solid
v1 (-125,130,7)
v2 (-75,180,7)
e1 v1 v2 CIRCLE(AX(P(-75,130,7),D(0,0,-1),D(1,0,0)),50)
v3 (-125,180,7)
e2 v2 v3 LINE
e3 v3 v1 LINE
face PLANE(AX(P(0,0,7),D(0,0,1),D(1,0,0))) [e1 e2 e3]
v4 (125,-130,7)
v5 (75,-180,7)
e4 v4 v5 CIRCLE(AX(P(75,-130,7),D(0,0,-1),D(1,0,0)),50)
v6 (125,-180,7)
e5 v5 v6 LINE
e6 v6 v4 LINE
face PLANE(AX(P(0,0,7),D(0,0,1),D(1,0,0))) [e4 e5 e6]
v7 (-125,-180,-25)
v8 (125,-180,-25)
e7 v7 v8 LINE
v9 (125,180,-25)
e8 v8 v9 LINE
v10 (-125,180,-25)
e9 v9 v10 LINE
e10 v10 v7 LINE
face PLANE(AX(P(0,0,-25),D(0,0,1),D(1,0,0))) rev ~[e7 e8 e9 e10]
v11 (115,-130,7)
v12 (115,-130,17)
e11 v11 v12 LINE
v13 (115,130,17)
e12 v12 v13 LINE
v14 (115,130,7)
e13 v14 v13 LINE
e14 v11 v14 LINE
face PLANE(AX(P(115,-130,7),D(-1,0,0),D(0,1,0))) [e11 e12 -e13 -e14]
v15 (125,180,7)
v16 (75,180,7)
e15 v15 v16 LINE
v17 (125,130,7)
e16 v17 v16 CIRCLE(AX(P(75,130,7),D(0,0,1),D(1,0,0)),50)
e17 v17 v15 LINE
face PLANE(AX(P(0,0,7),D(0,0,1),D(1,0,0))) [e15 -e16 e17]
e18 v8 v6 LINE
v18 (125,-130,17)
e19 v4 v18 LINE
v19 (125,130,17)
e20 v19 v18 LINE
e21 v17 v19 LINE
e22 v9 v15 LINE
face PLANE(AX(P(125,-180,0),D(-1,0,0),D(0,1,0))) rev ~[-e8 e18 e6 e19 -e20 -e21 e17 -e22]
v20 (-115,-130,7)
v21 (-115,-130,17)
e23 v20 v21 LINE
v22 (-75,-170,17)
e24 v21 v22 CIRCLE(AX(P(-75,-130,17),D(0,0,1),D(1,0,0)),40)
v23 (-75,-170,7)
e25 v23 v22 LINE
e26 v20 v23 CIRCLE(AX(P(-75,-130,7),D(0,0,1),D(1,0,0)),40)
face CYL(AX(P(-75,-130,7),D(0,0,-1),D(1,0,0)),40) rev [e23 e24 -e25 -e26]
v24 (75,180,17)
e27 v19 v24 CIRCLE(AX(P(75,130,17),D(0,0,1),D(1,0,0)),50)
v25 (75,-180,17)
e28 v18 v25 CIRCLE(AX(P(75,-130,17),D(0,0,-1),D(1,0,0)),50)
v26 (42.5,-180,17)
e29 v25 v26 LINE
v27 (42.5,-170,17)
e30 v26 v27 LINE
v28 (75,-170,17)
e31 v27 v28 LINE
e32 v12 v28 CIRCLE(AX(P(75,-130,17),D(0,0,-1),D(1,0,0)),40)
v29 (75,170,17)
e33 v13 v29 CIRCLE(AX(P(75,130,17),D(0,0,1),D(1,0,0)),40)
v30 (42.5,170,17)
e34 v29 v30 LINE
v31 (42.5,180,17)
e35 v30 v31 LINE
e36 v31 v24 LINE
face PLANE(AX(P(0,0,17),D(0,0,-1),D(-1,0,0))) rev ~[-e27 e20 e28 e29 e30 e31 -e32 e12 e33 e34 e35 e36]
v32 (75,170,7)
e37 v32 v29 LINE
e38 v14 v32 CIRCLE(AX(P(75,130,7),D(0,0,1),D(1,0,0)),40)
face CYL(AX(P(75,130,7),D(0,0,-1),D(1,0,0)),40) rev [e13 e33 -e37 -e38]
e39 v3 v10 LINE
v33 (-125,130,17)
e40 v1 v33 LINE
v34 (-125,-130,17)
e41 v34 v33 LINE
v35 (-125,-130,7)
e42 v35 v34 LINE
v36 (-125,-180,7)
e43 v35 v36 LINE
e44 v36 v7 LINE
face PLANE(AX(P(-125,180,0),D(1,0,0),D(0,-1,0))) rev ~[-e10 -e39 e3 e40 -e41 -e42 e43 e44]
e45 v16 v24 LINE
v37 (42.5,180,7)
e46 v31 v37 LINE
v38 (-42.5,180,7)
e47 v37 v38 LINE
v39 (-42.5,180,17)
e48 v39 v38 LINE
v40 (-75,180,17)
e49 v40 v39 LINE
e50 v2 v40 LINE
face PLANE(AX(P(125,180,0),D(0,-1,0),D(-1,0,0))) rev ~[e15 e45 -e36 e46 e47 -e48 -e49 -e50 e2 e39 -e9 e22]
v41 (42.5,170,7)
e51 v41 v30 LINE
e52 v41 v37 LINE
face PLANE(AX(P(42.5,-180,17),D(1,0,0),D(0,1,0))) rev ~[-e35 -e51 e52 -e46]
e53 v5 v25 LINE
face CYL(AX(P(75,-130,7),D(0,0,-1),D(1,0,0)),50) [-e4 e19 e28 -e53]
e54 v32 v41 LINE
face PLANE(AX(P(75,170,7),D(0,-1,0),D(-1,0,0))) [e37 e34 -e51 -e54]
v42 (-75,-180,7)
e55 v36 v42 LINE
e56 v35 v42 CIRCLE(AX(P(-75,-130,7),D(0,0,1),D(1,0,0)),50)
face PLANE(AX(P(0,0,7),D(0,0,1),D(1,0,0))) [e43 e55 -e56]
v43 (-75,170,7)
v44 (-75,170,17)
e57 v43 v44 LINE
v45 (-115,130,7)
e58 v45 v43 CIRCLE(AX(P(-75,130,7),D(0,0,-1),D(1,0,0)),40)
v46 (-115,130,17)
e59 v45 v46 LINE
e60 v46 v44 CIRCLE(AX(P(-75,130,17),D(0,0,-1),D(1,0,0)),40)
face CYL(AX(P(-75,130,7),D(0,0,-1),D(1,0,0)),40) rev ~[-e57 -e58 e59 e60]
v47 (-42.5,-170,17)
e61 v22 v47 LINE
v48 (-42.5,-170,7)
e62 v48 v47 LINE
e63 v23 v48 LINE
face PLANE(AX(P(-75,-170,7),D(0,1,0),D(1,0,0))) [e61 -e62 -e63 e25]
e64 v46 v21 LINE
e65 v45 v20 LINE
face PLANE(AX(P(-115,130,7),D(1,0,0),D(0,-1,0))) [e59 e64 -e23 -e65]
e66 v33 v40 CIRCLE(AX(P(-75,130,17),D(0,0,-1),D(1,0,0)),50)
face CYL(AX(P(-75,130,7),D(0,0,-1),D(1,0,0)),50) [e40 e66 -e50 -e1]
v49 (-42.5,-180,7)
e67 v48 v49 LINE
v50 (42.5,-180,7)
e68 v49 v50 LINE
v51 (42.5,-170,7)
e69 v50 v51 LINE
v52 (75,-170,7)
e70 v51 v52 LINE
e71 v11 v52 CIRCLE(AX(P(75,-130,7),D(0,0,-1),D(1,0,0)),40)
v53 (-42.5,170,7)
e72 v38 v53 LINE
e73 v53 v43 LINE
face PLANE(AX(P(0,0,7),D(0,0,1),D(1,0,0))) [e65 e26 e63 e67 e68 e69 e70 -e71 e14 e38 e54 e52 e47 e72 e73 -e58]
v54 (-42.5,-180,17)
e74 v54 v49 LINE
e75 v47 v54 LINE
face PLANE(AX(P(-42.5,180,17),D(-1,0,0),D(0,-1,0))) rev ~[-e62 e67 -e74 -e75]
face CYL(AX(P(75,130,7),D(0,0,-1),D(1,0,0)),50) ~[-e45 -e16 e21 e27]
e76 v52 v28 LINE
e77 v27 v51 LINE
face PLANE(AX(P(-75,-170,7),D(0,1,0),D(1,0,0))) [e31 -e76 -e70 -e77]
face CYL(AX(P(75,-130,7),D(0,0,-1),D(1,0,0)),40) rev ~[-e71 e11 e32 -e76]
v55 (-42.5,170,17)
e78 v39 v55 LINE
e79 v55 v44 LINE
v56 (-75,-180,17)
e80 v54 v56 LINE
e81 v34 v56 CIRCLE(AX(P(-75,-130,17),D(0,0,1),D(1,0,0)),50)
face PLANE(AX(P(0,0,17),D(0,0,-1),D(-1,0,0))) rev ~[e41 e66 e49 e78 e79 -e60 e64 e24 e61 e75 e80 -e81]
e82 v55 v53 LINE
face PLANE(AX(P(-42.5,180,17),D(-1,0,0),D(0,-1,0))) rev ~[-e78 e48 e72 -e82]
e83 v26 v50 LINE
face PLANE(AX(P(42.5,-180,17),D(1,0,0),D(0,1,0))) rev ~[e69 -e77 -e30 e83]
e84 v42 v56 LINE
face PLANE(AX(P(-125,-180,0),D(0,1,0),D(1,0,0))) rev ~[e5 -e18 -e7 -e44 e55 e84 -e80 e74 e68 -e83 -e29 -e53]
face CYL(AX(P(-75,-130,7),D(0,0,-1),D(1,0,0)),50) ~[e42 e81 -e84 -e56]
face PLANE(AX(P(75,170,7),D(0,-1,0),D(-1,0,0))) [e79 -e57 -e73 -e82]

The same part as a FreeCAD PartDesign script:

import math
import FreeCAD as App
import Part
import Sketcher

V = App.Vector
Q = App.Units.Quantity


def add_polygon(sketch, points):
    """Adds a closed chain of lines whose ends are joined by coincident constraints."""
    first, n = sketch.GeometryCount, len(points)
    for a, b in zip(points, points[1:] + points[:1]):
        sketch.addGeometry(Part.LineSegment(App.Vector(*a, 0), App.Vector(*b, 0)), False)
    for i in range(n):
        sketch.addConstraint(Sketcher.Constraint("Coincident", first + i, 2, first + (i + 1) % n, 1))

doc = App.newDocument("Part")
params = doc.addObject("Spreadsheet::Sheet", "Params")
for row, (alias, value) in enumerate([
    ("sketch1_width", "250 mm"),
    ("sketch1_height", "360 mm"),
    ("pad1_length", "7 mm"),
    ("sketch2_radius", "50 mm"),
    ("sketch2_radius2", "40 mm"),
    ("sketch2_width", "150 mm"),
    ("sketch2_height", "260 mm"),
    ("pad2_length", "10 mm"),
    ("sketch3_width", "85 mm"),
    ("sketch3_height", "360 mm"),
    ("pocket1_length", "10 mm"),
    ("sketch4_width", "250 mm"),
    ("sketch4_height", "360 mm"),
    ("pad3_length", "25 mm"),
], start=1):
    params.set(f"A{row}", alias)
    params.set(f"B{row}", "=" + value)
    params.setAlias(f"B{row}", alias)

body = doc.addObject("PartDesign::Body", "Body")

sketch1 = body.newObject("Sketcher::SketchObject", "Sketch")
sketch1.AttachmentSupport = (doc.getObject("XY_Plane"), [""])
sketch1.MapMode = "FlatFace"
add_polygon(sketch1, [(-125, 180), (-125, -180), (125, -180), (125, 180)])
sketch1.addConstraint(Sketcher.Constraint("Vertical", 0))
sketch1.addConstraint(Sketcher.Constraint("Horizontal", 1))
sketch1.addConstraint(Sketcher.Constraint("Vertical", 2))
sketch1.addConstraint(Sketcher.Constraint("Horizontal", 3))
sketch1.addConstraint(Sketcher.Constraint("Symmetric", 0, 2, 2, 2, -1, 1))
sketch1.addConstraint(Sketcher.Constraint("DistanceX", 1, 1, 1, 2, Q("250 mm")))
sketch1.addConstraint(Sketcher.Constraint("DistanceY", 0, 2, 0, 1, Q("360 mm")))
sketch1.setExpression("Constraints[9]", "Params.sketch1_width")
sketch1.setExpression("Constraints[10]", "Params.sketch1_height")
pad1 = body.newObject("PartDesign::Pad", "Pad")
pad1.Profile = sketch1
pad1.setExpression("Length", "Params.pad1_length")

sketch2 = body.newObject("Sketcher::SketchObject", "Sketch001")
sketch2.AttachmentSupport = (doc.getObject("XY_Plane"), [""])
sketch2.MapMode = "FlatFace"
sketch2.AttachmentOffset = App.Placement(V(0, 0, 7), App.Rotation())
sketch2.addGeometry(Part.LineSegment(V(-75, -180, 0), V(75, -180, 0)), False)
sketch2.addGeometry(Part.ArcOfCircle(Part.Circle(V(75, -130, 0), V(0, 0, 1), 50), math.radians(-90), math.radians(0)), False)
sketch2.addGeometry(Part.LineSegment(V(125, -130, 0), V(125, 130, 0)), False)
sketch2.addGeometry(Part.ArcOfCircle(Part.Circle(V(75, 130, 0), V(0, 0, 1), 50), math.radians(0), math.radians(90)), False)
sketch2.addGeometry(Part.LineSegment(V(75, 180, 0), V(-75, 180, 0)), False)
sketch2.addGeometry(Part.ArcOfCircle(Part.Circle(V(-75, 130, 0), V(0, 0, 1), 50), math.radians(90), math.radians(180)), False)
sketch2.addGeometry(Part.LineSegment(V(-125, 130, 0), V(-125, -130, 0)), False)
sketch2.addGeometry(Part.ArcOfCircle(Part.Circle(V(-75, -130, 0), V(0, 0, 1), 50), math.radians(180), math.radians(270)), False)
sketch2.addGeometry(Part.LineSegment(V(-75, 170, 0), V(75, 170, 0)), False)
sketch2.addGeometry(Part.ArcOfCircle(Part.Circle(V(75, 130, 0), V(0, 0, 1), 40), math.radians(0), math.radians(90)), False)
sketch2.addGeometry(Part.LineSegment(V(115, 130, 0), V(115, -130, 0)), False)
sketch2.addGeometry(Part.ArcOfCircle(Part.Circle(V(75, -130, 0), V(0, 0, 1), 40), math.radians(-90), math.radians(0)), False)
sketch2.addGeometry(Part.LineSegment(V(75, -170, 0), V(-75, -170, 0)), False)
sketch2.addGeometry(Part.ArcOfCircle(Part.Circle(V(-75, -130, 0), V(0, 0, 1), 40), math.radians(180), math.radians(270)), False)
sketch2.addGeometry(Part.LineSegment(V(-115, -130, 0), V(-115, 130, 0)), False)
sketch2.addGeometry(Part.ArcOfCircle(Part.Circle(V(-75, 130, 0), V(0, 0, 1), 40), math.radians(90), math.radians(180)), False)
sketch2.addConstraint(Sketcher.Constraint("Tangent", 0, 2, 1, 1))
sketch2.addConstraint(Sketcher.Constraint("Tangent", 1, 2, 2, 1))
sketch2.addConstraint(Sketcher.Constraint("Tangent", 2, 2, 3, 1))
sketch2.addConstraint(Sketcher.Constraint("Tangent", 3, 2, 4, 1))
sketch2.addConstraint(Sketcher.Constraint("Tangent", 4, 2, 5, 1))
sketch2.addConstraint(Sketcher.Constraint("Tangent", 5, 2, 6, 1))
sketch2.addConstraint(Sketcher.Constraint("Tangent", 6, 2, 7, 1))
sketch2.addConstraint(Sketcher.Constraint("Tangent", 7, 2, 0, 1))
sketch2.addConstraint(Sketcher.Constraint("Tangent", 8, 2, 9, 2))
sketch2.addConstraint(Sketcher.Constraint("Tangent", 9, 1, 10, 1))
sketch2.addConstraint(Sketcher.Constraint("Tangent", 10, 2, 11, 2))
sketch2.addConstraint(Sketcher.Constraint("Tangent", 11, 1, 12, 1))
sketch2.addConstraint(Sketcher.Constraint("Tangent", 12, 2, 13, 2))
sketch2.addConstraint(Sketcher.Constraint("Tangent", 13, 1, 14, 1))
sketch2.addConstraint(Sketcher.Constraint("Tangent", 14, 2, 15, 2))
sketch2.addConstraint(Sketcher.Constraint("Tangent", 15, 1, 8, 1))
sketch2.addConstraint(Sketcher.Constraint("Horizontal", 0))
sketch2.addConstraint(Sketcher.Constraint("Vertical", 2))
sketch2.addConstraint(Sketcher.Constraint("Horizontal", 4))
sketch2.addConstraint(Sketcher.Constraint("Vertical", 6))
sketch2.addConstraint(Sketcher.Constraint("Horizontal", 8))
sketch2.addConstraint(Sketcher.Constraint("Vertical", 10))
sketch2.addConstraint(Sketcher.Constraint("Horizontal", 12))
sketch2.addConstraint(Sketcher.Constraint("Vertical", 14))
sketch2.addConstraint(Sketcher.Constraint("Coincident", 9, 3, 3, 3))
sketch2.addConstraint(Sketcher.Constraint("Coincident", 11, 3, 1, 3))
sketch2.addConstraint(Sketcher.Constraint("Coincident", 13, 3, 7, 3))
sketch2.addConstraint(Sketcher.Constraint("Equal", 1, 3))
sketch2.addConstraint(Sketcher.Constraint("Equal", 3, 5))
sketch2.addConstraint(Sketcher.Constraint("Equal", 5, 7))
sketch2.addConstraint(Sketcher.Constraint("Equal", 13, 15))
sketch2.addConstraint(Sketcher.Constraint("Symmetric", 1, 3, 5, 3, -1, 1))
sketch2.addConstraint(Sketcher.Constraint("Radius", 1, Q("50 mm")))
sketch2.addConstraint(Sketcher.Constraint("Radius", 9, Q("40 mm")))
sketch2.addConstraint(Sketcher.Constraint("DistanceX", 0, 1, 0, 2, Q("150 mm")))
sketch2.addConstraint(Sketcher.Constraint("DistanceY", 2, 1, 2, 2, Q("260 mm")))
sketch2.setExpression("Constraints[32]", "Params.sketch2_radius")
sketch2.setExpression("Constraints[33]", "Params.sketch2_radius2")
sketch2.setExpression("Constraints[34]", "Params.sketch2_width")
sketch2.setExpression("Constraints[35]", "Params.sketch2_height")
pad2 = body.newObject("PartDesign::Pad", "Pad001")
pad2.Profile = sketch2
pad2.setExpression("Length", "Params.pad2_length")

sketch3 = body.newObject("Sketcher::SketchObject", "Sketch002")
sketch3.AttachmentSupport = (doc.getObject("XY_Plane"), [""])
sketch3.MapMode = "FlatFace"
sketch3.AttachmentOffset = App.Placement(V(0, 0, 17), App.Rotation())
add_polygon(sketch3, [(-42, 180), (-42, -180), (42, -180), (42, 180)])
sketch3.addConstraint(Sketcher.Constraint("Vertical", 0))
sketch3.addConstraint(Sketcher.Constraint("Horizontal", 1))
sketch3.addConstraint(Sketcher.Constraint("Vertical", 2))
sketch3.addConstraint(Sketcher.Constraint("Horizontal", 3))
sketch3.addConstraint(Sketcher.Constraint("Symmetric", 0, 2, 2, 2, -1, 1))
sketch3.addConstraint(Sketcher.Constraint("DistanceX", 1, 1, 1, 2, Q("85 mm")))
sketch3.addConstraint(Sketcher.Constraint("DistanceY", 0, 2, 0, 1, Q("360 mm")))
sketch3.setExpression("Constraints[9]", "Params.sketch3_width")
sketch3.setExpression("Constraints[10]", "Params.sketch3_height")
pocket1 = body.newObject("PartDesign::Pocket", "Pocket")
pocket1.Profile = sketch3
pocket1.setExpression("Length", "Params.pocket1_length")

sketch4 = body.newObject("Sketcher::SketchObject", "Sketch003")
sketch4.AttachmentSupport = (doc.getObject("XY_Plane"), [""])
sketch4.MapMode = "FlatFace"
add_polygon(sketch4, [(-125, 180), (125, 180), (125, -180), (-125, -180)])
sketch4.addConstraint(Sketcher.Constraint("Horizontal", 0))
sketch4.addConstraint(Sketcher.Constraint("Vertical", 1))
sketch4.addConstraint(Sketcher.Constraint("Horizontal", 2))
sketch4.addConstraint(Sketcher.Constraint("Vertical", 3))
sketch4.addConstraint(Sketcher.Constraint("Symmetric", 0, 2, 2, 2, -1, 1))
sketch4.addConstraint(Sketcher.Constraint("DistanceX", 0, 1, 0, 2, Q("250 mm")))
sketch4.addConstraint(Sketcher.Constraint("DistanceY", 1, 2, 1, 1, Q("360 mm")))
sketch4.setExpression("Constraints[9]", "Params.sketch4_width")
sketch4.setExpression("Constraints[10]", "Params.sketch4_height")
pad3 = body.newObject("PartDesign::Pad", "Pad002")
pad3.Profile = sketch4
pad3.setExpression("Length", "Params.pad3_length")
pad3.Reversed = True

doc.recompute()
